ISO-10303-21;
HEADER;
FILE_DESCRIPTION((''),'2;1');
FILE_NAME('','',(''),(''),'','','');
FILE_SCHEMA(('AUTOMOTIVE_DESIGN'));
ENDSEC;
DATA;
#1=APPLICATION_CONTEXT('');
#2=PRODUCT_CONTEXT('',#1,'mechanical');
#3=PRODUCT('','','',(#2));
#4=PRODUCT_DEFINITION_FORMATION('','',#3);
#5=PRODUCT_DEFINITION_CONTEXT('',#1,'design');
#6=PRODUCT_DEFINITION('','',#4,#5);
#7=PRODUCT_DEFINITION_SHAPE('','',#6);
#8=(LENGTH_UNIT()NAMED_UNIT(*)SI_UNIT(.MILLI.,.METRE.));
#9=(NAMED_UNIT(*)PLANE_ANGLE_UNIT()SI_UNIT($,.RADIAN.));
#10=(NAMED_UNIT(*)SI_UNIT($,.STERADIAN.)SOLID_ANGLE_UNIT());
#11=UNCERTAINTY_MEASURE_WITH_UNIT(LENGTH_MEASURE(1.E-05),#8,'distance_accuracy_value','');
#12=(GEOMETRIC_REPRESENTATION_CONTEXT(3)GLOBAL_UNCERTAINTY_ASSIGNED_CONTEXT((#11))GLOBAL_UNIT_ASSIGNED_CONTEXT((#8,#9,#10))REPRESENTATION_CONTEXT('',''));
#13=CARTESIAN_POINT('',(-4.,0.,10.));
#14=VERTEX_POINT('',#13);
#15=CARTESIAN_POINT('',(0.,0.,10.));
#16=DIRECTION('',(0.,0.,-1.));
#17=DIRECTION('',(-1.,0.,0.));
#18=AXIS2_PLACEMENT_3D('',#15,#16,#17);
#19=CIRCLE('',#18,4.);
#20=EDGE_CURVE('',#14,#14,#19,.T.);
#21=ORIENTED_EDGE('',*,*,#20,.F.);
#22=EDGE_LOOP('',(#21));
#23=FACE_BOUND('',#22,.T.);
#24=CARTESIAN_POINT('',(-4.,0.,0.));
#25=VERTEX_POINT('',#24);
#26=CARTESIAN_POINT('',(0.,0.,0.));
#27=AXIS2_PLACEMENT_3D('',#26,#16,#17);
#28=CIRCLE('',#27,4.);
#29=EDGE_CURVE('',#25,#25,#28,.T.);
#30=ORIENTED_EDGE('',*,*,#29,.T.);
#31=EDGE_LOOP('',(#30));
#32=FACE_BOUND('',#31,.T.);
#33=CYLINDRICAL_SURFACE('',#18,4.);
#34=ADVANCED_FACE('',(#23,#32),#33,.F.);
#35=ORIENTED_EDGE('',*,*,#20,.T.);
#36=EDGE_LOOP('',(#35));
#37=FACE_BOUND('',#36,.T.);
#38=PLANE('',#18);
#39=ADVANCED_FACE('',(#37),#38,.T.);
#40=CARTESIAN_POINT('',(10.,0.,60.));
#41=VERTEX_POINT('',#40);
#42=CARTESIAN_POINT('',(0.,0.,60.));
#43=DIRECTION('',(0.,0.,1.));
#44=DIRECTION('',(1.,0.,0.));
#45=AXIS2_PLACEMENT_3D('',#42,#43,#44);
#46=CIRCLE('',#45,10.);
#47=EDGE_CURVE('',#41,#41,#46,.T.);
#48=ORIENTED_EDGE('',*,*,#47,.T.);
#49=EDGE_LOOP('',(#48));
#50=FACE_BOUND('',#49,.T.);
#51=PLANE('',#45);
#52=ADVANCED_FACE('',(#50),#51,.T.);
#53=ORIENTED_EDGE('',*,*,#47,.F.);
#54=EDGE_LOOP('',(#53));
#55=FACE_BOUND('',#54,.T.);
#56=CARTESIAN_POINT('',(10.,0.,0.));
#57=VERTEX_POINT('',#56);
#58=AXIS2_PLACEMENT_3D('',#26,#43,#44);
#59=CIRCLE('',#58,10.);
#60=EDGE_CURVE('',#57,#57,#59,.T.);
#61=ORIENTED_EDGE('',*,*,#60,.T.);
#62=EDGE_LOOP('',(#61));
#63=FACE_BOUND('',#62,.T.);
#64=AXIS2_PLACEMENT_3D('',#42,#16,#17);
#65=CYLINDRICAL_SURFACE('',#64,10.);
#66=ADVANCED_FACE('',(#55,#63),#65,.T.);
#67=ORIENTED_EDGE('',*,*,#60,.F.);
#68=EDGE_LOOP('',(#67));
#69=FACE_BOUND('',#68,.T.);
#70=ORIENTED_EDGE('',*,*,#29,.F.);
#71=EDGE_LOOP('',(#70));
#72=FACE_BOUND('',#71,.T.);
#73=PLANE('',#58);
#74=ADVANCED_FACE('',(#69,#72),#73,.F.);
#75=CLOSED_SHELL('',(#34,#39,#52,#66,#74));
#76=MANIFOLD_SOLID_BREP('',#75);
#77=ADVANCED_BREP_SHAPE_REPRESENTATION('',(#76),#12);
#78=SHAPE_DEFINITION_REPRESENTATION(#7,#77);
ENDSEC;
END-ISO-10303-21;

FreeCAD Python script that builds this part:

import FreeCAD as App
import Part
import Sketcher
from FreeCAD import Vector
Q = App.Units.Quantity

doc = App.newDocument("Part")
body = doc.addObject("PartDesign::Body", "Body")

sketch1 = body.newObject("Sketcher::SketchObject", "Sketch")
sketch1.AttachmentSupport = (doc.getObject("XY_Plane"), [""])
sketch1.MapMode = "FlatFace"
sketch1.addGeometry(Part.Circle(Vector(0, 0, 0), Vector(0, 0, 1), 10), False)
sketch1.addConstraint([
    Sketcher.Constraint("Coincident", 0, 3, -1, 1),
    Sketcher.Constraint("Diameter", 0, Q("20 mm")),
])
pad1 = body.newObject("PartDesign::Pad", "Pad")
pad1.Profile = sketch1
pad1.Length = 60

sketch2 = body.newObject("Sketcher::SketchObject", "Sketch001")
sketch2.AttachmentSupport = (doc.getObject("XY_Plane"), [""])
sketch2.MapMode = "FlatFace"
sketch2.addGeometry(Part.Circle(Vector(0, 0, 0), Vector(0, 0, 1), 4), False)
sketch2.addConstraint([
    Sketcher.Constraint("Coincident", 0, 3, -1, 1),
    Sketcher.Constraint("Diameter", 0, Q("8 mm")),
])
pocket1 = body.newObject("PartDesign::Pocket", "Pocket")
pocket1.Profile = sketch2
pocket1.Length = 10
pocket1.Reversed = True

doc.recompute()
